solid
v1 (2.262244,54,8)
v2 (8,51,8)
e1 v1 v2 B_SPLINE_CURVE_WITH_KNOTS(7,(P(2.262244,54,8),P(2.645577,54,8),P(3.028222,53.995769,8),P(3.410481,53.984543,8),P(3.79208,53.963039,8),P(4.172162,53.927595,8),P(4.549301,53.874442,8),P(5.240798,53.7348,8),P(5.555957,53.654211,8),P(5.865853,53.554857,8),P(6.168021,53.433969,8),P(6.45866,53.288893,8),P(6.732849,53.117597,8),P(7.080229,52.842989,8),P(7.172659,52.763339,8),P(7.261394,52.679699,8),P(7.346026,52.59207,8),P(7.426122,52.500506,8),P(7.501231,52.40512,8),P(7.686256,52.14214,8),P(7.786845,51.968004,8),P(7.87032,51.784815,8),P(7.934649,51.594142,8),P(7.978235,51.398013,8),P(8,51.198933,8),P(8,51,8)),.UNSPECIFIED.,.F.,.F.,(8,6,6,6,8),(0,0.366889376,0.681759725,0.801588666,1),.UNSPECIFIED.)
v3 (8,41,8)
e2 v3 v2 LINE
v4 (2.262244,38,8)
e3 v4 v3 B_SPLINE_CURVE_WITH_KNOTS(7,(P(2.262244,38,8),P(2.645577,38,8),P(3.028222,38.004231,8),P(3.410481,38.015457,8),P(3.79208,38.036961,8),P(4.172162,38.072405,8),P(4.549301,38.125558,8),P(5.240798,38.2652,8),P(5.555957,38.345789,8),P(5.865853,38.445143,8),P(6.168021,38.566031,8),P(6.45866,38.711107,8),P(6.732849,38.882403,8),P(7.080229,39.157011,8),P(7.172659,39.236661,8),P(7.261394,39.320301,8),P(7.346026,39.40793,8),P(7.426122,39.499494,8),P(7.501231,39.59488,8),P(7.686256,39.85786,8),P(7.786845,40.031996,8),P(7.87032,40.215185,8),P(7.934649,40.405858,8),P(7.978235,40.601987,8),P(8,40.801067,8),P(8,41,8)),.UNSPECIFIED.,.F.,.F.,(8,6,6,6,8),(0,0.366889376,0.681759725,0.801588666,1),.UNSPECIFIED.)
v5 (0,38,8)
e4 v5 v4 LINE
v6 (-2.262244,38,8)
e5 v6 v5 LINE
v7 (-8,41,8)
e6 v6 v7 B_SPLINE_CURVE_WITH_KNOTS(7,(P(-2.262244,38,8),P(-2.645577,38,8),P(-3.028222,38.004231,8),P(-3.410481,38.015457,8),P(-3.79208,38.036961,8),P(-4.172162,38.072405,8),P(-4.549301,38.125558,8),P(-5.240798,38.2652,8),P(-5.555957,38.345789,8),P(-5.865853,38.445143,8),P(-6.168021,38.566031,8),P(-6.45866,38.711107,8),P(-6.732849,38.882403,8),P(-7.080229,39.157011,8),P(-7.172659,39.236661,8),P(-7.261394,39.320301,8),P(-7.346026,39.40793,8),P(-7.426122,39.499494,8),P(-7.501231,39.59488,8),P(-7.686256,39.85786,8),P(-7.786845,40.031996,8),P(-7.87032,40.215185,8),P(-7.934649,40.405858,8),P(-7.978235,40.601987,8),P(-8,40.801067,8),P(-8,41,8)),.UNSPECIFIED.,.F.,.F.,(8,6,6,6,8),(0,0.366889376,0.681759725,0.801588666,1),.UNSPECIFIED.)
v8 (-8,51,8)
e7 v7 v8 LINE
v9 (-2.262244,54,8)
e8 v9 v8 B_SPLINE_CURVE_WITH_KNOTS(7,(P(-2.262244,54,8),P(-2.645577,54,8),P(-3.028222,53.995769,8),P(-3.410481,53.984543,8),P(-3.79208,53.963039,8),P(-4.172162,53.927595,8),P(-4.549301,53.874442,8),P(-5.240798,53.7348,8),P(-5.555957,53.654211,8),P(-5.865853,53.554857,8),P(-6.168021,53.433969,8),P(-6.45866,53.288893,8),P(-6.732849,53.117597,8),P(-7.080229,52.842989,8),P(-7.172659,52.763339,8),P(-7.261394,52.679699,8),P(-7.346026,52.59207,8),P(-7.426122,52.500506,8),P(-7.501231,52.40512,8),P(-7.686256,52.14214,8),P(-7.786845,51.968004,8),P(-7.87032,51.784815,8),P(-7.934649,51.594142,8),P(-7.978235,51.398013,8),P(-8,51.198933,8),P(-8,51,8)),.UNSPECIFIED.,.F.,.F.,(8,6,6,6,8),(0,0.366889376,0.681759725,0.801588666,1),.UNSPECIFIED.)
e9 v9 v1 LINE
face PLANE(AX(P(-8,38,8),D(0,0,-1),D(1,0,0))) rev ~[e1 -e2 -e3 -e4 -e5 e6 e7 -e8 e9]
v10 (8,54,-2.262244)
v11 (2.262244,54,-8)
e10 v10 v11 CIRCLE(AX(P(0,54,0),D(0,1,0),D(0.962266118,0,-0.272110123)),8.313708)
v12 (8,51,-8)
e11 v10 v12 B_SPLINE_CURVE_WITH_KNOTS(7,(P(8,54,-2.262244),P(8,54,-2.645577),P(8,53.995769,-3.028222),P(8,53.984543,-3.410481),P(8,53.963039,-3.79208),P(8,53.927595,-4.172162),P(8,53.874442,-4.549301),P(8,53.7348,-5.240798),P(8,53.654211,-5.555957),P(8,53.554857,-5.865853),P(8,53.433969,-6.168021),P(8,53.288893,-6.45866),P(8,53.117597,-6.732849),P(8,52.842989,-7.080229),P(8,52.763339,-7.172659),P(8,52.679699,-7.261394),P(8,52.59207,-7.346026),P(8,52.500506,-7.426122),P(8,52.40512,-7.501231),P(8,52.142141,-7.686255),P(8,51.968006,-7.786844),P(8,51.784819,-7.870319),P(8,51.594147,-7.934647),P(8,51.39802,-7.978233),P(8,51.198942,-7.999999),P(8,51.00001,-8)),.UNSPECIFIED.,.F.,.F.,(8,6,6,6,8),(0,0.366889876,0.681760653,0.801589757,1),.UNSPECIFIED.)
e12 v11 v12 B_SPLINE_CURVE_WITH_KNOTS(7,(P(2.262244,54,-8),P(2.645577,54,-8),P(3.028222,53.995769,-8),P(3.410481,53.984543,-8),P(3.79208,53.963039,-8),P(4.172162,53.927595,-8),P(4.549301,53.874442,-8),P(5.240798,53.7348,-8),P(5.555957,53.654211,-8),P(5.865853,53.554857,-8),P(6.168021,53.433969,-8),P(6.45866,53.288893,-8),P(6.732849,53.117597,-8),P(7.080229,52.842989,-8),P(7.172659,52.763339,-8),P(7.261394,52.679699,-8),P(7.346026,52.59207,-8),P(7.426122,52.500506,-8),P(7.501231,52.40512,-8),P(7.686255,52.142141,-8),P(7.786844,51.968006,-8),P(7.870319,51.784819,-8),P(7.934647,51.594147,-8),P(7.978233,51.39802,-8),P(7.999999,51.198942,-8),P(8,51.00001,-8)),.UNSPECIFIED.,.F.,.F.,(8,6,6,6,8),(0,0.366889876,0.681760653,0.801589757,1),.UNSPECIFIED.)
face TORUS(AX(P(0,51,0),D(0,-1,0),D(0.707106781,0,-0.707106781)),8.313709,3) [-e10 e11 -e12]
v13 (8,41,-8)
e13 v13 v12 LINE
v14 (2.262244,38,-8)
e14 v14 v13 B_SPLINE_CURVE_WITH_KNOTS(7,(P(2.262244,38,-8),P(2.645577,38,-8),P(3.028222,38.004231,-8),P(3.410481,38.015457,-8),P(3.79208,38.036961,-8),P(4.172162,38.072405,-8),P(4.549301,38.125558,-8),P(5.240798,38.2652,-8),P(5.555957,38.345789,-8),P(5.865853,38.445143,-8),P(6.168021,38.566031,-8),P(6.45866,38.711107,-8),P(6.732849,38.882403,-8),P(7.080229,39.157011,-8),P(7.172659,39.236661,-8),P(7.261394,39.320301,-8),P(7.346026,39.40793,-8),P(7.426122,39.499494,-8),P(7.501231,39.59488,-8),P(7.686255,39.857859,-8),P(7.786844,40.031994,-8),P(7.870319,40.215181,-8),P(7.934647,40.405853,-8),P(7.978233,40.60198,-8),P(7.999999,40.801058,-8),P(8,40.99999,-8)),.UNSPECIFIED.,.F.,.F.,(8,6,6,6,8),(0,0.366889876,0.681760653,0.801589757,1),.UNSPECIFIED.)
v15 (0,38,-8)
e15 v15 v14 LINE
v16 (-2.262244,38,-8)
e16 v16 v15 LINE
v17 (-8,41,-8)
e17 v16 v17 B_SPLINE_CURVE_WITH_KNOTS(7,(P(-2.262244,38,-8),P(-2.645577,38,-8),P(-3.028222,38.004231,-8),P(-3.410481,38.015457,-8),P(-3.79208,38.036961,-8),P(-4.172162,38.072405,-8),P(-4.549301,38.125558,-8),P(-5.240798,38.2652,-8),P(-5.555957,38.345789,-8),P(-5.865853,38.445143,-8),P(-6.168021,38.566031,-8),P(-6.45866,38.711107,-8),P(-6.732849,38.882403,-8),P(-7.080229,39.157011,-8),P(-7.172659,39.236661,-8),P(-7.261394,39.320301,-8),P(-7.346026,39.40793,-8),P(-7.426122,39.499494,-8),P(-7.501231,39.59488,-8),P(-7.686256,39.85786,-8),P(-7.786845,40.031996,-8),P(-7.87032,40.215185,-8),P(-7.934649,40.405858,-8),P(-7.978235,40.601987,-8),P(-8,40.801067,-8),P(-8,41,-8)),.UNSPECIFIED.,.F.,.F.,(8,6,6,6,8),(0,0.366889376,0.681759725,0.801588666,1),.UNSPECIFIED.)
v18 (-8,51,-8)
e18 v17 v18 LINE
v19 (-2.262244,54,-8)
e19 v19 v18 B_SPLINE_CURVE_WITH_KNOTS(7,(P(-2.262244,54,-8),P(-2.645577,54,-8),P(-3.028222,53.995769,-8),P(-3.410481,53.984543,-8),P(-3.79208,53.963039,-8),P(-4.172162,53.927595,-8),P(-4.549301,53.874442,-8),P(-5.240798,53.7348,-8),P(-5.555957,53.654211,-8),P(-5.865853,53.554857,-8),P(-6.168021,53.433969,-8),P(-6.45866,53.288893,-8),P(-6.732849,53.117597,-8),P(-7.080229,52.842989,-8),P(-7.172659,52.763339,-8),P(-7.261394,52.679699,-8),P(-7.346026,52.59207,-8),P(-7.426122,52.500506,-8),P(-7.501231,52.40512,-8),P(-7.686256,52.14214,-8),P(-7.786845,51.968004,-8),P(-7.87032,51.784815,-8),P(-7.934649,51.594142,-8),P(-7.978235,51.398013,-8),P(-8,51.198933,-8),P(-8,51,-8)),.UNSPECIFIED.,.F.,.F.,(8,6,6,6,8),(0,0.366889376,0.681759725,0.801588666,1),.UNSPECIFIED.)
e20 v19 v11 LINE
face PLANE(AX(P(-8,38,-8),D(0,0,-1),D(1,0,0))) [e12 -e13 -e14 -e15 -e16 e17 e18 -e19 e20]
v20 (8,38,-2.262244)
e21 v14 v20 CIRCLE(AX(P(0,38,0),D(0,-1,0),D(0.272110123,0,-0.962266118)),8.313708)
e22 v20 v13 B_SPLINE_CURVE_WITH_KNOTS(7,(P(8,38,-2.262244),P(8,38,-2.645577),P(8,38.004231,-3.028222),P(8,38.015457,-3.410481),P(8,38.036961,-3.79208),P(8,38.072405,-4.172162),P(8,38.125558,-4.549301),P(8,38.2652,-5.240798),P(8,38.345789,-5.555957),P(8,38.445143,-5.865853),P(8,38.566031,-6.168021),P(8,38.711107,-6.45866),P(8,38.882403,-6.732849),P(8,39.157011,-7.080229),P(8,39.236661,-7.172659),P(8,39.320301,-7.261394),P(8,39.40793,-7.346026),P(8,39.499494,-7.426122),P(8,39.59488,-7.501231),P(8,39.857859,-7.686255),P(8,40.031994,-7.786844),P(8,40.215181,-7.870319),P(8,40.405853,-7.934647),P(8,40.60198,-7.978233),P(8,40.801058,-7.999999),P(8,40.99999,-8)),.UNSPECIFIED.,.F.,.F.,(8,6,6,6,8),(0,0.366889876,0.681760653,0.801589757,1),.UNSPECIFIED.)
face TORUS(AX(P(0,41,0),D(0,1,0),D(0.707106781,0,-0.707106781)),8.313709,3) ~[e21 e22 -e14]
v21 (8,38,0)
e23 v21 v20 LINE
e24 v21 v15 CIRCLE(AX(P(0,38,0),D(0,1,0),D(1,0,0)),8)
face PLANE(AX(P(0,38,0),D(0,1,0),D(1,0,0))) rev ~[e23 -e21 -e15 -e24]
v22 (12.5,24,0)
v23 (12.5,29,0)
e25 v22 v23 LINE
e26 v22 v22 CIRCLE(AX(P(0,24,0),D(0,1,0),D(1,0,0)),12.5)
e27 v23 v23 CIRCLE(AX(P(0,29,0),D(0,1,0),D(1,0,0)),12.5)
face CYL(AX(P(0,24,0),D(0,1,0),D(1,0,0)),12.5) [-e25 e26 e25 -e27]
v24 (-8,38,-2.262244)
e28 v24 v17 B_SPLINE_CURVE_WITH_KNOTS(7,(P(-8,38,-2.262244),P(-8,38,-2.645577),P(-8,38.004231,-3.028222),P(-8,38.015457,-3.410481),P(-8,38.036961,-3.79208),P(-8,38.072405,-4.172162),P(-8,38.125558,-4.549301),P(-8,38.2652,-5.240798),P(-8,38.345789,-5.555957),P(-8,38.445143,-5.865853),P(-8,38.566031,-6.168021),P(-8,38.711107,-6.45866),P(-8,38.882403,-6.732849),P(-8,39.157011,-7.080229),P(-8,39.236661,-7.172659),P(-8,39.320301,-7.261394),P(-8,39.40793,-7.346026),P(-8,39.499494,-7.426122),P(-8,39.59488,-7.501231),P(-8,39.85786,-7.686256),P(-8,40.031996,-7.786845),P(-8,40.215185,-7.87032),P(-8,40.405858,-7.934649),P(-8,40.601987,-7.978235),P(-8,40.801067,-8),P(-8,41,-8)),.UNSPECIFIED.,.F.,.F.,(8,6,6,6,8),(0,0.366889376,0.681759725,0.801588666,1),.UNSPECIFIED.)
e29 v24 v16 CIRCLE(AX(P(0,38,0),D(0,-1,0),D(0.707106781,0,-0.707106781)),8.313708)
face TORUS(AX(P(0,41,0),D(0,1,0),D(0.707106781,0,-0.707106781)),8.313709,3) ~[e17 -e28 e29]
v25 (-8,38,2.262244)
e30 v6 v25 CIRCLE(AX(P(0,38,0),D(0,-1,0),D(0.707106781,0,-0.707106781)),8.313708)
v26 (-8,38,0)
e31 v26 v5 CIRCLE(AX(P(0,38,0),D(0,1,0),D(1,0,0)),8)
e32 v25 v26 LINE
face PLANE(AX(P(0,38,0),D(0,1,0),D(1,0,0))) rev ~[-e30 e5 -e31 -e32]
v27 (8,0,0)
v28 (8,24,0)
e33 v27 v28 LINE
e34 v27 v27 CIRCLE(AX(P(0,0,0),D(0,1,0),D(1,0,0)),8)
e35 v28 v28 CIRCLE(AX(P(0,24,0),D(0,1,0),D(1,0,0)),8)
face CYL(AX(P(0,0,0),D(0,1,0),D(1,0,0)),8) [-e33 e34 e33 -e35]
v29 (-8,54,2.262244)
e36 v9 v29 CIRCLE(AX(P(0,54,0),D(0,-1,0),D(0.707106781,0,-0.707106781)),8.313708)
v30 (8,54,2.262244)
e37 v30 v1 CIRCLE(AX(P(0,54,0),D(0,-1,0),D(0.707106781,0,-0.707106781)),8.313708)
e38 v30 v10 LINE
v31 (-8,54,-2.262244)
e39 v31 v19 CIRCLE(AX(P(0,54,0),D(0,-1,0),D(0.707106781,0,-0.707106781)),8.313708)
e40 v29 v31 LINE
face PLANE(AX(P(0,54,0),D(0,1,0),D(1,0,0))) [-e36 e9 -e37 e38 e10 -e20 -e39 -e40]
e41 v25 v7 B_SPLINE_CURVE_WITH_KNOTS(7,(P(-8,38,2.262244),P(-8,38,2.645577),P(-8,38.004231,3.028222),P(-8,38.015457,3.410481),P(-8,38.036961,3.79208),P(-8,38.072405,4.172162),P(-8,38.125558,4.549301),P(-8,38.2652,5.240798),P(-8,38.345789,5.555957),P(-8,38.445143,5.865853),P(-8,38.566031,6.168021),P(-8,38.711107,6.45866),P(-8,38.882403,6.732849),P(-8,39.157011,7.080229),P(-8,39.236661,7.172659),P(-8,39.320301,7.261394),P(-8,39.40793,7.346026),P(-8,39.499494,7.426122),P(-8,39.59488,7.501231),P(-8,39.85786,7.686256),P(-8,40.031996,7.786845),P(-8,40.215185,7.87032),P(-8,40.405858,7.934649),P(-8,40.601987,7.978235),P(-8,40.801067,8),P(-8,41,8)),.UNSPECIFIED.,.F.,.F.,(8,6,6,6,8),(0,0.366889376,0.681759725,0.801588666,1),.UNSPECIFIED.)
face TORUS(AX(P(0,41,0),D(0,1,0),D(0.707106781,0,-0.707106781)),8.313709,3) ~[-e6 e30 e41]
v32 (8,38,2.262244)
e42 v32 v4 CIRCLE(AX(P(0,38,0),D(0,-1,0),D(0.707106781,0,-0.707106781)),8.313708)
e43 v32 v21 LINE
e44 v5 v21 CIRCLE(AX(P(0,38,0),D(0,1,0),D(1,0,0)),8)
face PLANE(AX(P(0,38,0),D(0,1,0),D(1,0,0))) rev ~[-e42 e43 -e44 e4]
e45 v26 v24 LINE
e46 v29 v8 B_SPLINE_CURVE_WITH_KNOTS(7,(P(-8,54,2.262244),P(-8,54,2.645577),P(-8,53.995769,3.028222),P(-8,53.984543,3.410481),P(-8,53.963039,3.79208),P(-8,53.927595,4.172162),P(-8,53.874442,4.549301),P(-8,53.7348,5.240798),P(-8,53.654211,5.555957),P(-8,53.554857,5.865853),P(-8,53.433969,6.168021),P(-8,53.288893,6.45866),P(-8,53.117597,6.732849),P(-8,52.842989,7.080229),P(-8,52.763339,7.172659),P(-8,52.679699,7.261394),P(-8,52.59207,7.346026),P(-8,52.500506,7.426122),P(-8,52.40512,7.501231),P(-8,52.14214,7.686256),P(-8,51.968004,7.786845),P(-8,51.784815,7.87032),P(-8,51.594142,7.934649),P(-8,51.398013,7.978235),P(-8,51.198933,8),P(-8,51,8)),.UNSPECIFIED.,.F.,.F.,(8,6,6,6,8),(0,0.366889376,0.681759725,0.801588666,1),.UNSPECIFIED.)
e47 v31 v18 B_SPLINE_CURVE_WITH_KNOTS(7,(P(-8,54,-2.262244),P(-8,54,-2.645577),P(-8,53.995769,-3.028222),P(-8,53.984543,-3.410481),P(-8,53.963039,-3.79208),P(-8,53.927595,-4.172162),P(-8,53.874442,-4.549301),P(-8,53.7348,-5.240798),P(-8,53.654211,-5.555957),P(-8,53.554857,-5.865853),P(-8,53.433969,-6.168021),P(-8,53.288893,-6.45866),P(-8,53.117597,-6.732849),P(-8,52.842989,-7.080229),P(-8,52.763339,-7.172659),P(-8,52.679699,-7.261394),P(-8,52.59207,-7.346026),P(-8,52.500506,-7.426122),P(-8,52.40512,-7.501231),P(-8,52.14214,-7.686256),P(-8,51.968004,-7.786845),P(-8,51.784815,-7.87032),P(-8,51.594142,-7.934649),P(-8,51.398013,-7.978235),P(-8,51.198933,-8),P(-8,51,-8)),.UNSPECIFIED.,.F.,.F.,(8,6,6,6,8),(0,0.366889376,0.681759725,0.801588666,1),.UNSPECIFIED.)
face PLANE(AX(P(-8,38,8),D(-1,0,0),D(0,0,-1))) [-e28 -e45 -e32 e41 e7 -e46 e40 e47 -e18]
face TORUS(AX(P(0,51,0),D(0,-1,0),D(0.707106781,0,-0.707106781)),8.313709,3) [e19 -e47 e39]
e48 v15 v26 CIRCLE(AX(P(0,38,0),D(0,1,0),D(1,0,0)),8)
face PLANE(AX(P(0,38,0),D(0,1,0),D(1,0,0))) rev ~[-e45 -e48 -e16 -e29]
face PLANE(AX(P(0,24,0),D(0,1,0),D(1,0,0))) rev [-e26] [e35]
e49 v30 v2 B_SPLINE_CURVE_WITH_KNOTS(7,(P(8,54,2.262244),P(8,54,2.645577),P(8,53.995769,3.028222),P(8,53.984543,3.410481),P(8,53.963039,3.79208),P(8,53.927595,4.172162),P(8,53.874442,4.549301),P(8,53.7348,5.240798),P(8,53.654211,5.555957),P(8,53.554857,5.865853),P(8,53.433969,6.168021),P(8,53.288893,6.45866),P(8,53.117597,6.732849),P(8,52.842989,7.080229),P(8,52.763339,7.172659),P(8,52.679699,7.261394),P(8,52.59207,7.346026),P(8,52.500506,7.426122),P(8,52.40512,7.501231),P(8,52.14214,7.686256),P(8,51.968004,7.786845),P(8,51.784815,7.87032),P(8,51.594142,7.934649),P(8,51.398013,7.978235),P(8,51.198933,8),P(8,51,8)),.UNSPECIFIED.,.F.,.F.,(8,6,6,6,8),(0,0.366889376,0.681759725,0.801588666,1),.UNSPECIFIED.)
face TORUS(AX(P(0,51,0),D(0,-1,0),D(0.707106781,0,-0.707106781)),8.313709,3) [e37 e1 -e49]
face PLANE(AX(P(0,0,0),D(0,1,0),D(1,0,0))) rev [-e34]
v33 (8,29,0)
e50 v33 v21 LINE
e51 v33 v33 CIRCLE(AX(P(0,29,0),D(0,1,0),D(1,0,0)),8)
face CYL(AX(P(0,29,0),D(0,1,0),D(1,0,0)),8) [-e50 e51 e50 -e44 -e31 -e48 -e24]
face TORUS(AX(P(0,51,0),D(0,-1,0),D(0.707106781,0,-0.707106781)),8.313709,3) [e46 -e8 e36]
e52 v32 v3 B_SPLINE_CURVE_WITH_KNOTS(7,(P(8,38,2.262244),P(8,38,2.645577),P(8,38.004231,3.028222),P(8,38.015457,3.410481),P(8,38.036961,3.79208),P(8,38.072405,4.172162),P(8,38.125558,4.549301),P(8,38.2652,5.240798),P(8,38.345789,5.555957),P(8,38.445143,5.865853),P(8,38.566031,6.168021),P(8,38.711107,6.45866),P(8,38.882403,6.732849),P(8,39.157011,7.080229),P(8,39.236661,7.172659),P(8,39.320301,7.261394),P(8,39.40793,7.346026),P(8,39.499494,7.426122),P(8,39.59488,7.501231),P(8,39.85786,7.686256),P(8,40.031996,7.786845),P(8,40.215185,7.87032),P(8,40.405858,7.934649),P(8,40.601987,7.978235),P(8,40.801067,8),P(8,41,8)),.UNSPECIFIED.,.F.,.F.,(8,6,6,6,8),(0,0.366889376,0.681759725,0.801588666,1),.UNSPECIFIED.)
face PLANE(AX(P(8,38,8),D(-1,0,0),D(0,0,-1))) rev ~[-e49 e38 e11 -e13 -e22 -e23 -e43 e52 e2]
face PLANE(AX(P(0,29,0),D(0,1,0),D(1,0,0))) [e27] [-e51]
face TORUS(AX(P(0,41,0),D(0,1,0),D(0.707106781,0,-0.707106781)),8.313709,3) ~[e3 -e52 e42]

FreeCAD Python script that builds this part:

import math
import FreeCAD as App
import Part
import Sketcher
Q = App.Units.Quantity

doc = App.newDocument("Part")
params = doc.addObject("Spreadsheet::Sheet", "Params")
for row, (alias, value) in enumerate([
    ("sketch1_width", "8 mm"),
    ("sketch1_height", "24 mm"),
    ("sketch1_height2", "5 mm"),
    ("sketch1_height3", "9 mm"),
    ("sketch1_width2", "4.5 mm"),
    ("revolution_angle", "360 deg"),
    ("sketch2_width", "16 mm"),
    ("pad1_length", "16 mm"),
    ("sketch3_radius", "3 mm"),
    ("groove_angle", "360 deg"),
], start=1):
    params.set(f"A{row}", alias)
    params.set(f"B{row}", "=" + value)
    params.setAlias(f"B{row}", alias)

body = doc.addObject("PartDesign::Body", "Body")

# Sketch on XY plane
sketch1 = body.newObject("Sketcher::SketchObject", "Sketch")
sketch1.AttachmentSupport = (doc.getObject("XY_Plane"), [""])
sketch1.MapMode = "FlatFace"
sketch1.addGeometry([
    Part.LineSegment(App.Vector(0, 0, 0), App.Vector(8, 0, 0)),  # 0
    Part.LineSegment(App.Vector(8, 0, 0), App.Vector(8, 24, 0)),  # 1
    Part.LineSegment(App.Vector(8, 24, 0), App.Vector(12.5, 24, 0)),  # 2
    Part.LineSegment(App.Vector(12.5, 24, 0), App.Vector(12.5, 29, 0)),  # 3
    Part.LineSegment(App.Vector(12.5, 29, 0), App.Vector(8, 29, 0)),  # 4
    Part.LineSegment(App.Vector(8, 29, 0), App.Vector(8, 38, 0)),  # 5
    Part.LineSegment(App.Vector(8, 38, 0), App.Vector(0, 38, 0)),  # 6
    Part.LineSegment(App.Vector(0, 38, 0), App.Vector(0, 0, 0)),  # 7
], False)
sketch1.addConstraint([
    Sketcher.Constraint("Coincident", 0, 2, 1, 1),
    Sketcher.Constraint("Coincident", 1, 2, 2, 1),
    Sketcher.Constraint("Coincident", 2, 2, 3, 1),
    Sketcher.Constraint("Coincident", 3, 2, 4, 1),
    Sketcher.Constraint("Coincident", 4, 2, 5, 1),
    Sketcher.Constraint("Coincident", 5, 2, 6, 1),
    Sketcher.Constraint("Coincident", 6, 2, 7, 1),
    Sketcher.Constraint("Coincident", 7, 2, 0, 1),
    Sketcher.Constraint("Horizontal", 0),
    Sketcher.Constraint("Vertical", 1),
    Sketcher.Constraint("Horizontal", 2),
    Sketcher.Constraint("Vertical", 3),
    Sketcher.Constraint("Horizontal", 4),
    Sketcher.Constraint("Vertical", 5),
    Sketcher.Constraint("Horizontal", 6),
    Sketcher.Constraint("Vertical", 7),
    Sketcher.Constraint("Coincident", 7, 2, -1, 1),
    Sketcher.Constraint("Vertical", 1, 2, 4, 2),
    Sketcher.Constraint("DistanceX", 0, 1, 0, 2, Q("8 mm")),
    Sketcher.Constraint("DistanceY", 1, 1, 1, 2, Q("24 mm")),
    Sketcher.Constraint("DistanceY", 3, 1, 3, 2, Q("5 mm")),
    Sketcher.Constraint("DistanceY", 5, 1, 5, 2, Q("9 mm")),
    Sketcher.Constraint("DistanceX", 2, 1, 2, 2, Q("4.5 mm")),
])
sketch1.setExpression("Constraints[18]", "Params.sketch1_width")
sketch1.setExpression("Constraints[19]", "Params.sketch1_height")
sketch1.setExpression("Constraints[20]", "Params.sketch1_height2")
sketch1.setExpression("Constraints[21]", "Params.sketch1_height3")
sketch1.setExpression("Constraints[22]", "Params.sketch1_width2")
revolution = body.newObject("PartDesign::Revolution", "Revolution")
revolution.Profile = sketch1
revolution.ReferenceAxis = (sketch1, ["V_Axis"])
revolution.setExpression("Angle", "Params.revolution_angle")

# Sketch on XZ plane
sketch2 = body.newObject("Sketcher::SketchObject", "Sketch001")
sketch2.AttachmentSupport = (doc.getObject("XZ_Plane"), [""])
sketch2.MapMode = "FlatFace"
sketch2.AttachmentOffset = App.Placement(App.Vector(0, 0, -38), App.Rotation())
sketch2.addGeometry([
    Part.LineSegment(App.Vector(-8, -8, 0), App.Vector(-8, 8, 0)),
    Part.LineSegment(App.Vector(-8, 8, 0), App.Vector(8, 8, 0)),
    Part.LineSegment(App.Vector(8, 8, 0), App.Vector(8, -8, 0)),
    Part.LineSegment(App.Vector(8, -8, 0), App.Vector(-8, -8, 0)),
], False)
sketch2.addConstraint([
    Sketcher.Constraint("Coincident", 0, 2, 1, 1),
    Sketcher.Constraint("Coincident", 1, 2, 2, 1),
    Sketcher.Constraint("Coincident", 2, 2, 3, 1),
    Sketcher.Constraint("Coincident", 3, 2, 0, 1),
    Sketcher.Constraint("Vertical", 0),
    Sketcher.Constraint("Horizontal", 1),
    Sketcher.Constraint("Vertical", 2),
    Sketcher.Constraint("Horizontal", 3),
    Sketcher.Constraint("Symmetric", 0, 2, 2, 2, -1, 1),
    Sketcher.Constraint("Equal", 3, 0),
    Sketcher.Constraint("DistanceX", 1, 1, 1, 2, Q("16 mm")),
])
sketch2.setExpression("Constraints[10]", "Params.sketch2_width")
pad1 = body.newObject("PartDesign::Pad", "Pad")
pad1.Profile = sketch2
pad1.setExpression("Length", "Params.pad1_length")
pad1.Reversed = True

# Sketch on an angled plane
sketch3 = body.newObject("Sketcher::SketchObject", "Sketch002")
sketch3.Placement = App.Placement(App.Vector(0, 0, 0), App.Rotation(App.Vector(0.707106781, 0, -0.707106781), App.Vector(0, 0.999999999, 0), App.Vector(0.707106781, 0, 0.707106781), "ZXY"))
sketch3.addGeometry([
    Part.LineSegment(App.Vector(11.3, 54, 0), App.Vector(8.3, 54, 0)),  # 0
    Part.ArcOfCircle(Part.Circle(App.Vector(8.3, 51, 0), App.Vector(0, 0, 1), 3), math.radians(0), math.radians(90)),  # 1
    Part.LineSegment(App.Vector(11.3, 51, 0), App.Vector(11.3, 54, 0)),  # 2
    Part.LineSegment(App.Vector(8.3, 38, 0), App.Vector(11.3, 38, 0)),  # 3
    Part.LineSegment(App.Vector(11.3, 38, 0), App.Vector(11.3, 41, 0)),  # 4
    Part.ArcOfCircle(Part.Circle(App.Vector(8.3, 41, 0), App.Vector(0, 0, 1), 3), math.radians(-90), math.radians(0)),  # 5
], False)
sketch3.addConstraint([
    Sketcher.Constraint("Tangent", 0, 2, 1, 2),
    Sketcher.Constraint("Tangent", 1, 1, 2, 1),
    Sketcher.Constraint("Coincident", 2, 2, 0, 1),
    Sketcher.Constraint("Coincident", 3, 2, 4, 1),
    Sketcher.Constraint("Tangent", 4, 2, 5, 2),
    Sketcher.Constraint("Tangent", 5, 1, 3, 1),
    Sketcher.Constraint("Horizontal", 0),
    Sketcher.Constraint("Vertical", 2),
    Sketcher.Constraint("Horizontal", 3),
    Sketcher.Constraint("Vertical", 4),
    Sketcher.Constraint("Equal", 1, 5),
    Sketcher.Constraint("Vertical", 1, 3, 5, 3),
    Sketcher.Constraint("Radius", 1, Q("3 mm")),
    Sketcher.Constraint("DistanceY", -1, 1, 1, 3, Q("51 mm")),
    Sketcher.Constraint("DistanceY", -1, 1, 5, 3, Q("41 mm")),
    Sketcher.Constraint("DistanceX", -1, 1, 1, 3, Q("8.313708 mm")),
])
sketch3.setExpression("Constraints[12]", "Params.sketch3_radius")
groove = body.newObject("PartDesign::Groove", "Groove")
groove.Profile = sketch3
groove.ReferenceAxis = (sketch3, ["V_Axis"])
groove.setExpression("Angle", "Params.groove_angle")

doc.recompute()
